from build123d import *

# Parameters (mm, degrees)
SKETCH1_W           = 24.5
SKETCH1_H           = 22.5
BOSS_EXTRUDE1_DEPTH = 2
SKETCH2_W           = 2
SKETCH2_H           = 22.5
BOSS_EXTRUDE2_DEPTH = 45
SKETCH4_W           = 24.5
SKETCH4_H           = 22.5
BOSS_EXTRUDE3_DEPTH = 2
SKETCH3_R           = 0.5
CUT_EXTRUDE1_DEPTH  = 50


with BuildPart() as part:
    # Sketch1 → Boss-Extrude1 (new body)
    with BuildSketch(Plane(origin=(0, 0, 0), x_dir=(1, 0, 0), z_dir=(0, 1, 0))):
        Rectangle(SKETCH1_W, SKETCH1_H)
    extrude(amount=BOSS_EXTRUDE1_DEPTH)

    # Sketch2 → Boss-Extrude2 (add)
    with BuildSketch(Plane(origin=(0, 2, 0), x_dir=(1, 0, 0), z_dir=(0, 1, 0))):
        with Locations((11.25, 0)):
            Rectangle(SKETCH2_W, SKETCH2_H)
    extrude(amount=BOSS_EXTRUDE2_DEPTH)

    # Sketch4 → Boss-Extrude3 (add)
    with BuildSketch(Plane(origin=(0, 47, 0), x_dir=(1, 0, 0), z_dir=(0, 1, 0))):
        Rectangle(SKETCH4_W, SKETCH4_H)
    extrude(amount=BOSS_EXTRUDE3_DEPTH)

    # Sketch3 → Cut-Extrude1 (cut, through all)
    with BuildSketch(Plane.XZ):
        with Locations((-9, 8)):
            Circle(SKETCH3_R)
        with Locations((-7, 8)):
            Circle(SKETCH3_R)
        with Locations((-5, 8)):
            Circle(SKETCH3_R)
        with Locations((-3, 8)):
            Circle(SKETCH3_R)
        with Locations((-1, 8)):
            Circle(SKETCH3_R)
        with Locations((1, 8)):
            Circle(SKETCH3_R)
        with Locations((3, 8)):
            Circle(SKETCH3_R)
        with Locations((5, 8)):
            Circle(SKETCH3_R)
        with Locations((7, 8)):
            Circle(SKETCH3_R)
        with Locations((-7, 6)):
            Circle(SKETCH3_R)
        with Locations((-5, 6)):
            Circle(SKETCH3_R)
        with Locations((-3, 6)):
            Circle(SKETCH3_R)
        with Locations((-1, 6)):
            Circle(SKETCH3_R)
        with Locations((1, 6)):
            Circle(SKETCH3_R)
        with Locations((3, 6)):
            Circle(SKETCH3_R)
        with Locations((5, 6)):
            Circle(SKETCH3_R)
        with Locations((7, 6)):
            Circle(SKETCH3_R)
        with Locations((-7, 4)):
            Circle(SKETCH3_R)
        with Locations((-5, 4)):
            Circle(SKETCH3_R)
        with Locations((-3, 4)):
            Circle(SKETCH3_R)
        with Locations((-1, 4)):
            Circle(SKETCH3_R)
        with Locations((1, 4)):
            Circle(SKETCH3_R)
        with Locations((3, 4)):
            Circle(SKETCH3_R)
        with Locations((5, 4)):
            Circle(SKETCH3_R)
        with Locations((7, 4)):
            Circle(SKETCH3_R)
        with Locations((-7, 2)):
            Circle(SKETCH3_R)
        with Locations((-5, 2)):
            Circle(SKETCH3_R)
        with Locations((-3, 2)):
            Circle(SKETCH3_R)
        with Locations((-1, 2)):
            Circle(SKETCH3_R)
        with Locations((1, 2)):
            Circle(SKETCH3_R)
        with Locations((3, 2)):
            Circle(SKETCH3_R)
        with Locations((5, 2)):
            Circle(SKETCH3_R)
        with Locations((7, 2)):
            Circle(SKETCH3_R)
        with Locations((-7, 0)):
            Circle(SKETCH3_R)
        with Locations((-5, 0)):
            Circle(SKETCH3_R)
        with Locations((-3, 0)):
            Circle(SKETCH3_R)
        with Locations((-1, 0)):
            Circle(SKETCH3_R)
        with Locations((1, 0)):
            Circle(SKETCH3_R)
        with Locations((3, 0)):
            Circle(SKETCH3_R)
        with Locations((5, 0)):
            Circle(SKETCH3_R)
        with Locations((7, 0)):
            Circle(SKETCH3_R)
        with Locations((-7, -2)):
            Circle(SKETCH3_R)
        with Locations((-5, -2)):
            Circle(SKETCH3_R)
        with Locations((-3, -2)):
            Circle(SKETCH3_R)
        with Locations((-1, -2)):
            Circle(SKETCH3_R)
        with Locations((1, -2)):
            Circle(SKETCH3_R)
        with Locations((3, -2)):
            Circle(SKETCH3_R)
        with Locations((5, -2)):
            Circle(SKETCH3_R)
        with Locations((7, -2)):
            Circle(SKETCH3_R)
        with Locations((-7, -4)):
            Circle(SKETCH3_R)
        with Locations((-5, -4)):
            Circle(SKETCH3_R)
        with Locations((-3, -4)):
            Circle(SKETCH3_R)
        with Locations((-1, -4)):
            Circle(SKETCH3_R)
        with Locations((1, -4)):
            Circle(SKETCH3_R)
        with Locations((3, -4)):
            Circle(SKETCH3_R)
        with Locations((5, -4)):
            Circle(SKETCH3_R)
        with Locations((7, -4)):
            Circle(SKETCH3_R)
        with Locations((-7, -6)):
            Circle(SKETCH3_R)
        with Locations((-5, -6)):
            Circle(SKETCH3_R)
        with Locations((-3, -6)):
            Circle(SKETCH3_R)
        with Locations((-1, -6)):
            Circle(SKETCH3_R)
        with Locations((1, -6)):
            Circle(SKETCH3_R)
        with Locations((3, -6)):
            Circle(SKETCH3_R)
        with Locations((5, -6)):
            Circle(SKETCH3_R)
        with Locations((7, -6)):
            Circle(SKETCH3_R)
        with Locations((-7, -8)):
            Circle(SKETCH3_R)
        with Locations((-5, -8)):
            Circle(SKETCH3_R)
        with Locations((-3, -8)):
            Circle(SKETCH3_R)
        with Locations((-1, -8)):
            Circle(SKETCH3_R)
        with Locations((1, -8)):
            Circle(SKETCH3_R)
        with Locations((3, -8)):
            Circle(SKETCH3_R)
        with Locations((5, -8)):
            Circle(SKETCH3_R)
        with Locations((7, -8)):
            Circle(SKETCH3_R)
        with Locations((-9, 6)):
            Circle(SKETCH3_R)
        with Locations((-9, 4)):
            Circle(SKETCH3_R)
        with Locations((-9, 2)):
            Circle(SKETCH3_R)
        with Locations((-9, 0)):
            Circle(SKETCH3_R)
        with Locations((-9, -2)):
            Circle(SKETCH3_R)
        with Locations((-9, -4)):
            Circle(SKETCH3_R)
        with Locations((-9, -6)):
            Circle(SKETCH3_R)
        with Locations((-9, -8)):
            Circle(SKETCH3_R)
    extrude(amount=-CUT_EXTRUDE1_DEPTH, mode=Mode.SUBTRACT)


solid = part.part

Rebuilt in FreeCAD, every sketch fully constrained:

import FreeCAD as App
import Part
import Sketcher

doc = App.newDocument("Part")
body = doc.addObject("PartDesign::Body", "Body")

# Sketch on XZ plane
sketch1 = body.newObject("Sketcher::SketchObject", "Sketch")
sketch1.AttachmentSupport = (doc.getObject("XZ_Plane"), [""])
sketch1.MapMode = "FlatFace"
sketch1.addGeometry([
    Part.LineSegment(App.Vector(-12, -11, 0), App.Vector(-12, 11, 0)),
    Part.LineSegment(App.Vector(-12, 11, 0), App.Vector(12, 11, 0)),
    Part.LineSegment(App.Vector(12, 11, 0), App.Vector(12, -11, 0)),
    Part.LineSegment(App.Vector(12, -11, 0), App.Vector(-12, -11, 0)),
], False)
sketch1.addConstraint([
    Sketcher.Constraint("Coincident", 0, 2, 1, 1),
    Sketcher.Constraint("Coincident", 1, 2, 2, 1),
    Sketcher.Constraint("Coincident", 2, 2, 3, 1),
    Sketcher.Constraint("Coincident", 3, 2, 0, 1),
    Sketcher.Constraint("Vertical", 0),
    Sketcher.Constraint("Horizontal", 1),
    Sketcher.Constraint("Vertical", 2),
    Sketcher.Constraint("Horizontal", 3),
    Sketcher.Constraint("Symmetric", 0, 2, 2, 2, -1, 1),
    Sketcher.Constraint("DistanceX", 1, 1, 1, 2, 24.5),
    Sketcher.Constraint("DistanceY", 0, 1, 0, 2, 22.5),
])
pad1 = body.newObject("PartDesign::Pad", "Pad")
pad1.Profile = sketch1
pad1.Length = 2
pad1.Reversed = True

# Sketch on XZ plane
sketch2 = body.newObject("Sketcher::SketchObject", "Sketch001")
sketch2.AttachmentSupport = (doc.getObject("XZ_Plane"), [""])
sketch2.MapMode = "FlatFace"
sketch2.AttachmentOffset = App.Placement(App.Vector(0, 0, -2), App.Rotation())
sketch2.addGeometry([
    Part.LineSegment(App.Vector(10.2, -11.2, 0), App.Vector(10.2, 11.2, 0)),
    Part.LineSegment(App.Vector(10.2, 11.2, 0), App.Vector(12.2, 11.2, 0)),
    Part.LineSegment(App.Vector(12.2, 11.2, 0), App.Vector(12.2, -11.2, 0)),
    Part.LineSegment(App.Vector(12.2, -11.2, 0), App.Vector(10.2, -11.2, 0)),
], False)
sketch2.addConstraint([
    Sketcher.Constraint("Coincident", 0, 2, 1, 1),
    Sketcher.Constraint("Coincident", 1, 2, 2, 1),
    Sketcher.Constraint("Coincident", 2, 2, 3, 1),
    Sketcher.Constraint("Coincident", 3, 2, 0, 1),
    Sketcher.Constraint("Vertical", 0),
    Sketcher.Constraint("Horizontal", 1),
    Sketcher.Constraint("Vertical", 2),
    Sketcher.Constraint("Horizontal", 3),
    Sketcher.Constraint("DistanceX", 1, 1, 1, 2, 2.0),
    Sketcher.Constraint("DistanceY", 0, 1, 0, 2, 22.5),
    Sketcher.Constraint("DistanceX", -1, 1, 0, 2, 10.25),
    Sketcher.Constraint("DistanceY", -1, 1, 0, 2, 11.25),
])
pad2 = body.newObject("PartDesign::Pad", "Pad001")
pad2.Profile = sketch2
pad2.Length = 45
pad2.Reversed = True

# Sketch on XZ plane
sketch3 = body.newObject("Sketcher::SketchObject", "Sketch002")
sketch3.AttachmentSupport = (doc.getObject("XZ_Plane"), [""])
sketch3.MapMode = "FlatFace"
sketch3.AttachmentOffset = App.Placement(App.Vector(0, 0, -47), App.Rotation())
sketch3.addGeometry([
    Part.LineSegment(App.Vector(-12, -11, 0), App.Vector(-12, 11, 0)),
    Part.LineSegment(App.Vector(-12, 11, 0), App.Vector(12, 11, 0)),
    Part.LineSegment(App.Vector(12, 11, 0), App.Vector(12, -11, 0)),
    Part.LineSegment(App.Vector(12, -11, 0), App.Vector(-12, -11, 0)),
], False)
sketch3.addConstraint([
    Sketcher.Constraint("Coincident", 0, 2, 1, 1),
    Sketcher.Constraint("Coincident", 1, 2, 2, 1),
    Sketcher.Constraint("Coincident", 2, 2, 3, 1),
    Sketcher.Constraint("Coincident", 3, 2, 0, 1),
    Sketcher.Constraint("Vertical", 0),
    Sketcher.Constraint("Horizontal", 1),
    Sketcher.Constraint("Vertical", 2),
    Sketcher.Constraint("Horizontal", 3),
    Sketcher.Constraint("Symmetric", 0, 2, 2, 2, -1, 1),
    Sketcher.Constraint("DistanceX", 1, 1, 1, 2, 24.5),
    Sketcher.Constraint("DistanceY", 0, 1, 0, 2, 22.5),
])
pad3 = body.newObject("PartDesign::Pad", "Pad002")
pad3.Profile = sketch3
pad3.Length = 2
pad3.Reversed = True

# Sketch on XZ plane
sketch4 = body.newObject("Sketcher::SketchObject", "Sketch003")
sketch4.AttachmentSupport = (doc.getObject("XZ_Plane"), [""])
sketch4.MapMode = "FlatFace"
sketch4.addGeometry([
    Part.Circle(App.Vector(-9, 8, 0), App.Vector(0, 0, 1), 0.5),  # 0
    Part.Circle(App.Vector(-7, 8, 0), App.Vector(0, 0, 1), 0.5),  # 1
    Part.Circle(App.Vector(-5, 8, 0), App.Vector(0, 0, 1), 0.5),  # 2
    Part.Circle(App.Vector(-3, 8, 0), App.Vector(0, 0, 1), 0.5),  # 3
    Part.Circle(App.Vector(-1, 8, 0), App.Vector(0, 0, 1), 0.5),  # 4
    Part.Circle(App.Vector(1, 8, 0), App.Vector(0, 0, 1), 0.5),  # 5
    Part.Circle(App.Vector(3, 8, 0), App.Vector(0, 0, 1), 0.5),  # 6
    Part.Circle(App.Vector(5, 8, 0), App.Vector(0, 0, 1), 0.5),  # 7
    Part.Circle(App.Vector(7, 8, 0), App.Vector(0, 0, 1), 0.5),  # 8
    Part.Circle(App.Vector(-7, 6, 0), App.Vector(0, 0, 1), 0.5),  # 9
    Part.Circle(App.Vector(-5, 6, 0), App.Vector(0, 0, 1), 0.5),  # 10
    Part.Circle(App.Vector(-3, 6, 0), App.Vector(0, 0, 1), 0.5),  # 11
    Part.Circle(App.Vector(-1, 6, 0), App.Vector(0, 0, 1), 0.5),  # 12
    Part.Circle(App.Vector(1, 6, 0), App.Vector(0, 0, 1), 0.5),  # 13
    Part.Circle(App.Vector(3, 6, 0), App.Vector(0, 0, 1), 0.5),  # 14
    Part.Circle(App.Vector(5, 6, 0), App.Vector(0, 0, 1), 0.5),  # 15
    Part.Circle(App.Vector(7, 6, 0), App.Vector(0, 0, 1), 0.5),  # 16
    Part.Circle(App.Vector(-7, 4, 0), App.Vector(0, 0, 1), 0.5),  # 17
    Part.Circle(App.Vector(-5, 4, 0), App.Vector(0, 0, 1), 0.5),  # 18
    Part.Circle(App.Vector(-3, 4, 0), App.Vector(0, 0, 1), 0.5),  # 19
    Part.Circle(App.Vector(-1, 4, 0), App.Vector(0, 0, 1), 0.5),  # 20
    Part.Circle(App.Vector(1, 4, 0), App.Vector(0, 0, 1), 0.5),  # 21
    Part.Circle(App.Vector(3, 4, 0), App.Vector(0, 0, 1), 0.5),  # 22
    Part.Circle(App.Vector(5, 4, 0), App.Vector(0, 0, 1), 0.5),  # 23
    Part.Circle(App.Vector(7, 4, 0), App.Vector(0, 0, 1), 0.5),  # 24
    Part.Circle(App.Vector(-7, 2, 0), App.Vector(0, 0, 1), 0.5),  # 25
    Part.Circle(App.Vector(-5, 2, 0), App.Vector(0, 0, 1), 0.5),  # 26
    Part.Circle(App.Vector(-3, 2, 0), App.Vector(0, 0, 1), 0.5),  # 27
    Part.Circle(App.Vector(-1, 2, 0), App.Vector(0, 0, 1), 0.5),  # 28
    Part.Circle(App.Vector(1, 2, 0), App.Vector(0, 0, 1), 0.5),  # 29
    Part.Circle(App.Vector(3, 2, 0), App.Vector(0, 0, 1), 0.5),  # 30
    Part.Circle(App.Vector(5, 2, 0), App.Vector(0, 0, 1), 0.5),  # 31
    Part.Circle(App.Vector(7, 2, 0), App.Vector(0, 0, 1), 0.5),  # 32
    Part.Circle(App.Vector(-7, 0, 0), App.Vector(0, 0, 1), 0.5),  # 33
    Part.Circle(App.Vector(-5, 0, 0), App.Vector(0, 0, 1), 0.5),  # 34
    Part.Circle(App.Vector(-3, 0, 0), App.Vector(0, 0, 1), 0.5),  # 35
    Part.Circle(App.Vector(-1, 0, 0), App.Vector(0, 0, 1), 0.5),  # 36
    Part.Circle(App.Vector(1, 0, 0), App.Vector(0, 0, 1), 0.5),  # 37
    Part.Circle(App.Vector(3, 0, 0), App.Vector(0, 0, 1), 0.5),  # 38
    Part.Circle(App.Vector(5, 0, 0), App.Vector(0, 0, 1), 0.5),  # 39
    Part.Circle(App.Vector(7, 0, 0), App.Vector(0, 0, 1), 0.5),  # 40
    Part.Circle(App.Vector(-7, -2, 0), App.Vector(0, 0, 1), 0.5),  # 41
    Part.Circle(App.Vector(-5, -2, 0), App.Vector(0, 0, 1), 0.5),  # 42
    Part.Circle(App.Vector(-3, -2, 0), App.Vector(0, 0, 1), 0.5),  # 43
    Part.Circle(App.Vector(-1, -2, 0), App.Vector(0, 0, 1), 0.5),  # 44
    Part.Circle(App.Vector(1, -2, 0), App.Vector(0, 0, 1), 0.5),  # 45
    Part.Circle(App.Vector(3, -2, 0), App.Vector(0, 0, 1), 0.5),  # 46
    Part.Circle(App.Vector(5, -2, 0), App.Vector(0, 0, 1), 0.5),  # 47
    Part.Circle(App.Vector(7, -2, 0), App.Vector(0, 0, 1), 0.5),  # 48
    Part.Circle(App.Vector(-7, -4, 0), App.Vector(0, 0, 1), 0.5),  # 49
    Part.Circle(App.Vector(-5, -4, 0), App.Vector(0, 0, 1), 0.5),  # 50
    Part.Circle(App.Vector(-3, -4, 0), App.Vector(0, 0, 1), 0.5),  # 51
    Part.Circle(App.Vector(-1, -4, 0), App.Vector(0, 0, 1), 0.5),  # 52
    Part.Circle(App.Vector(1, -4, 0), App.Vector(0, 0, 1), 0.5),  # 53
    Part.Circle(App.Vector(3, -4, 0), App.Vector(0, 0, 1), 0.5),  # 54
    Part.Circle(App.Vector(5, -4, 0), App.Vector(0, 0, 1), 0.5),  # 55
    Part.Circle(App.Vector(7, -4, 0), App.Vector(0, 0, 1), 0.5),  # 56
    Part.Circle(App.Vector(-7, -6, 0), App.Vector(0, 0, 1), 0.5),  # 57
    Part.Circle(App.Vector(-5, -6, 0), App.Vector(0, 0, 1), 0.5),  # 58
    Part.Circle(App.Vector(-3, -6, 0), App.Vector(0, 0, 1), 0.5),  # 59
    Part.Circle(App.Vector(-1, -6, 0), App.Vector(0, 0, 1), 0.5),  # 60
    Part.Circle(App.Vector(1, -6, 0), App.Vector(0, 0, 1), 0.5),  # 61
    Part.Circle(App.Vector(3, -6, 0), App.Vector(0, 0, 1), 0.5),  # 62
    Part.Circle(App.Vector(5, -6, 0), App.Vector(0, 0, 1), 0.5),  # 63
    Part.Circle(App.Vector(7, -6, 0), App.Vector(0, 0, 1), 0.5),  # 64
    Part.Circle(App.Vector(-7, -8, 0), App.Vector(0, 0, 1), 0.5),  # 65
    Part.Circle(App.Vector(-5, -8, 0), App.Vector(0, 0, 1), 0.5),  # 66
    Part.Circle(App.Vector(-3, -8, 0), App.Vector(0, 0, 1), 0.5),  # 67
    Part.Circle(App.Vector(-1, -8, 0), App.Vector(0, 0, 1), 0.5),  # 68
    Part.Circle(App.Vector(1, -8, 0), App.Vector(0, 0, 1), 0.5),  # 69
    Part.Circle(App.Vector(3, -8, 0), App.Vector(0, 0, 1), 0.5),  # 70
    Part.Circle(App.Vector(5, -8, 0), App.Vector(0, 0, 1), 0.5),  # 71
    Part.Circle(App.Vector(7, -8, 0), App.Vector(0, 0, 1), 0.5),  # 72
    Part.Circle(App.Vector(-9, 6, 0), App.Vector(0, 0, 1), 0.5),  # 73
    Part.Circle(App.Vector(-9, 4, 0), App.Vector(0, 0, 1), 0.5),  # 74
    Part.Circle(App.Vector(-9, 2, 0), App.Vector(0, 0, 1), 0.5),  # 75
    Part.Circle(App.Vector(-9, 0, 0), App.Vector(0, 0, 1), 0.5),  # 76
    Part.Circle(App.Vector(-9, -2, 0), App.Vector(0, 0, 1), 0.5),  # 77
    Part.Circle(App.Vector(-9, -4, 0), App.Vector(0, 0, 1), 0.5),  # 78
    Part.Circle(App.Vector(-9, -6, 0), App.Vector(0, 0, 1), 0.5),  # 79
    Part.Circle(App.Vector(-9, -8, 0), App.Vector(0, 0, 1), 0.5),  # 80
], False)
sketch4.addConstraint([
    Sketcher.Constraint("Equal", 0, 1),
    Sketcher.Constraint("Equal", 1, 2),
    Sketcher.Constraint("Equal", 2, 3),
    Sketcher.Constraint("Equal", 3, 4),
    Sketcher.Constraint("Equal", 4, 5),
    Sketcher.Constraint("Equal", 5, 6),
    Sketcher.Constraint("Equal", 6, 7),
    Sketcher.Constraint("Equal", 7, 8),
    Sketcher.Constraint("Equal", 8, 9),
    Sketcher.Constraint("Equal", 9, 10),
    Sketcher.Constraint("Equal", 10, 11),
    Sketcher.Constraint("Equal", 11, 12),
    Sketcher.Constraint("Equal", 12, 13),
    Sketcher.Constraint("Equal", 13, 14),
    Sketcher.Constraint("Equal", 14, 15),
    Sketcher.Constraint("Equal", 15, 16),
    Sketcher.Constraint("Equal", 16, 17),
    Sketcher.Constraint("Equal", 17, 18),
    Sketcher.Constraint("Equal", 18, 19),
    Sketcher.Constraint("Equal", 19, 20),
    Sketcher.Constraint("Equal", 20, 21),
    Sketcher.Constraint("Equal", 21, 22),
    Sketcher.Constraint("Equal", 22, 23),
    Sketcher.Constraint("Equal", 23, 24),
    Sketcher.Constraint("Equal", 24, 25),
    Sketcher.Constraint("Equal", 25, 26),
    Sketcher.Constraint("Equal", 26, 27),
    Sketcher.Constraint("Equal", 27, 28),
    Sketcher.Constraint("Equal", 28, 29),
    Sketcher.Constraint("Equal", 29, 30),
    Sketcher.Constraint("Equal", 30, 31),
    Sketcher.Constraint("Equal", 31, 32),
    Sketcher.Constraint("Equal", 32, 33),
    Sketcher.Constraint("Equal", 33, 34),
    Sketcher.Constraint("Equal", 34, 35),
    Sketcher.Constraint("Equal", 35, 36),
    Sketcher.Constraint("Equal", 36, 37),
    Sketcher.Constraint("Equal", 37, 38),
    Sketcher.Constraint("Equal", 38, 39),
    Sketcher.Constraint("Equal", 39, 40),
    Sketcher.Constraint("Equal", 40, 41),
    Sketcher.Constraint("Equal", 41, 42),
    Sketcher.Constraint("Equal", 42, 43),
    Sketcher.Constraint("Equal", 43, 44),
    Sketcher.Constraint("Equal", 44, 45),
    Sketcher.Constraint("Equal", 45, 46),
    Sketcher.Constraint("Equal", 46, 47),
    Sketcher.Constraint("Equal", 47, 48),
    Sketcher.Constraint("Equal", 48, 49),
    Sketcher.Constraint("Equal", 49, 50),
    Sketcher.Constraint("Equal", 50, 51),
    Sketcher.Constraint("Equal", 51, 52),
    Sketcher.Constraint("Equal", 52, 53),
    Sketcher.Constraint("Equal", 53, 54),
    Sketcher.Constraint("Equal", 54, 55),
    Sketcher.Constraint("Equal", 55, 56),
    Sketcher.Constraint("Equal", 56, 57),
    Sketcher.Constraint("Equal", 57, 58),
    Sketcher.Constraint("Equal", 58, 59),
    Sketcher.Constraint("Equal", 59, 60),
    Sketcher.Constraint("Equal", 60, 61),
    Sketcher.Constraint("Equal", 61, 62),
    Sketcher.Constraint("Equal", 62, 63),
    Sketcher.Constraint("Equal", 63, 64),
    Sketcher.Constraint("Equal", 64, 65),
    Sketcher.Constraint("Equal", 65, 66),
    Sketcher.Constraint("Equal", 66, 67),
    Sketcher.Constraint("Equal", 67, 68),
    Sketcher.Constraint("Equal", 68, 69),
    Sketcher.Constraint("Equal", 69, 70),
    Sketcher.Constraint("Equal", 70, 71),
    Sketcher.Constraint("Equal", 71, 72),
    Sketcher.Constraint("Equal", 72, 73),
    Sketcher.Constraint("Equal", 73, 74),
    Sketcher.Constraint("Equal", 74, 75),
    Sketcher.Constraint("Equal", 75, 76),
    Sketcher.Constraint("Equal", 76, 77),
    Sketcher.Constraint("Equal", 77, 78),
    Sketcher.Constraint("Equal", 78, 79),
    Sketcher.Constraint("Equal", 79, 80),
    Sketcher.Constraint("Symmetric", 36, 3, 37, 3, -1, 1),
    Sketcher.Constraint("Symmetric", 35, 3, 38, 3, -1, 1),
    Sketcher.Constraint("Symmetric", 34, 3, 39, 3, -1, 1),
    Sketcher.Constraint("Symmetric", 33, 3, 40, 3, -1, 1),
    Sketcher.Constraint("Symmetric", 32, 3, 41, 3, -1, 1),
    Sketcher.Constraint("Symmetric", 31, 3, 42, 3, -1, 1),
    Sketcher.Constraint("Symmetric", 30, 3, 43, 3, -1, 1),
    Sketcher.Constraint("Symmetric", 29, 3, 44, 3, -1, 1),
    Sketcher.Constraint("Symmetric", 28, 3, 45, 3, -1, 1),
    Sketcher.Constraint("Symmetric", 27, 3, 46, 3, -1, 1),
    Sketcher.Constraint("Symmetric", 26, 3, 47, 3, -1, 1),
    Sketcher.Constraint("Symmetric", 25, 3, 48, 3, -1, 1),
    Sketcher.Constraint("Symmetric", 24, 3, 49, 3, -1, 1),
    Sketcher.Constraint("Symmetric", 23, 3, 50, 3, -1, 1),
    Sketcher.Constraint("Symmetric", 22, 3, 51, 3, -1, 1),
    Sketcher.Constraint("Symmetric", 21, 3, 52, 3, -1, 1),
    Sketcher.Constraint("Symmetric", 20, 3, 53, 3, -1, 1),
    Sketcher.Constraint("Symmetric", 19, 3, 54, 3, -1, 1),
    Sketcher.Constraint("Symmetric", 18, 3, 55, 3, -1, 1),
    Sketcher.Constraint("Symmetric", 17, 3, 56, 3, -1, 1),
    Sketcher.Constraint("Symmetric", 16, 3, 57, 3, -1, 1),
    Sketcher.Constraint("Symmetric", 15, 3, 58, 3, -1, 1),
    Sketcher.Constraint("Symmetric", 14, 3, 59, 3, -1, 1),
    Sketcher.Constraint("Symmetric", 13, 3, 60, 3, -1, 1),
    Sketcher.Constraint("Symmetric", 12, 3, 61, 3, -1, 1),
    Sketcher.Constraint("Symmetric", 11, 3, 62, 3, -1, 1),
    Sketcher.Constraint("Symmetric", 10, 3, 63, 3, -1, 1),
    Sketcher.Constraint("Symmetric", 9, 3, 64, 3, -1, 1),
    Sketcher.Constraint("Symmetric", 8, 3, 65, 3, -1, 1),
    Sketcher.Constraint("Symmetric", 7, 3, 66, 3, -1, 1),
    Sketcher.Constraint("Symmetric", 6, 3, 67, 3, -1, 1),
    Sketcher.Constraint("Symmetric", 5, 3, 68, 3, -1, 1),
    Sketcher.Constraint("Symmetric", 4, 3, 69, 3, -1, 1),
    Sketcher.Constraint("Symmetric", 3, 3, 70, 3, -1, 1),
    Sketcher.Constraint("Symmetric", 2, 3, 71, 3, -1, 1),
    Sketcher.Constraint("Symmetric", 1, 3, 72, 3, -1, 1),
    Sketcher.Constraint("Symmetric", 4, 3, 5, 3, -2),
    Sketcher.Constraint("Symmetric", 3, 3, 6, 3, -2),
    Sketcher.Constraint("Symmetric", 2, 3, 7, 3, -2),
    Sketcher.Constraint("Symmetric", 1, 3, 8, 3, -2),
    Sketcher.Constraint("Symmetric", 12, 3, 13, 3, -2),
    Sketcher.Constraint("Symmetric", 11, 3, 14, 3, -2),
    Sketcher.Constraint("Symmetric", 10, 3, 15, 3, -2),
    Sketcher.Constraint("Symmetric", 9, 3, 16, 3, -2),
    Sketcher.Constraint("Symmetric", 20, 3, 21, 3, -2),
    Sketcher.Constraint("Symmetric", 19, 3, 22, 3, -2),
    Sketcher.Constraint("Symmetric", 18, 3, 23, 3, -2),
    Sketcher.Constraint("Symmetric", 17, 3, 24, 3, -2),
    Sketcher.Constraint("Symmetric", 28, 3, 29, 3, -2),
    Sketcher.Constraint("Symmetric", 27, 3, 30, 3, -2),
    Sketcher.Constraint("Symmetric", 26, 3, 31, 3, -2),
    Sketcher.Constraint("Symmetric", 25, 3, 32, 3, -2),
    Sketcher.Constraint("Symmetric", 75, 3, 77, 3, -1),
    Sketcher.Constraint("Symmetric", 74, 3, 78, 3, -1),
    Sketcher.Constraint("Symmetric", 73, 3, 79, 3, -1),
    Sketcher.Constraint("Symmetric", 0, 3, 80, 3, -1),
    Sketcher.Constraint("PointOnObject", 33, 3, -1),
    Sketcher.Constraint("PointOnObject", 34, 3, -1),
    Sketcher.Constraint("PointOnObject", 35, 3, -1),
    Sketcher.Constraint("PointOnObject", 36, 3, -1),
    Sketcher.Constraint("PointOnObject", 76, 3, -1),
    Sketcher.Constraint("Horizontal", 0, 3, 1, 3),
    Sketcher.Constraint("Horizontal", 1, 3, 2, 3),
    Sketcher.Constraint("Horizontal", 2, 3, 3, 3),
    Sketcher.Constraint("Horizontal", 3, 3, 4, 3),
    Sketcher.Constraint("Horizontal", 9, 3, 10, 3),
    Sketcher.Constraint("Horizontal", 10, 3, 11, 3),
    Sketcher.Constraint("Horizontal", 11, 3, 12, 3),
    Sketcher.Constraint("Horizontal", 17, 3, 18, 3),
    Sketcher.Constraint("Horizontal", 18, 3, 19, 3),
    Sketcher.Constraint("Horizontal", 19, 3, 20, 3),
    Sketcher.Constraint("Horizontal", 25, 3, 26, 3),
    Sketcher.Constraint("Horizontal", 26, 3, 27, 3),
    Sketcher.Constraint("Horizontal", 27, 3, 28, 3),
    Sketcher.Constraint("Horizontal", 16, 3, 73, 3),
    Sketcher.Constraint("Horizontal", 24, 3, 74, 3),
    Sketcher.Constraint("Horizontal", 32, 3, 75, 3),
    Sketcher.Constraint("Vertical", 1, 3, 9, 3),
    Sketcher.Constraint("Vertical", 2, 3, 10, 3),
    Sketcher.Constraint("Vertical", 3, 3, 11, 3),
    Sketcher.Constraint("Vertical", 4, 3, 12, 3),
    Sketcher.Constraint("Vertical", 9, 3, 17, 3),
    Sketcher.Constraint("Vertical", 10, 3, 18, 3),
    Sketcher.Constraint("Vertical", 11, 3, 19, 3),
    Sketcher.Constraint("Vertical", 12, 3, 20, 3),
    Sketcher.Constraint("Vertical", 17, 3, 25, 3),
    Sketcher.Constraint("Vertical", 18, 3, 26, 3),
    Sketcher.Constraint("Vertical", 19, 3, 27, 3),
    Sketcher.Constraint("Vertical", 20, 3, 28, 3),
    Sketcher.Constraint("Vertical", 25, 3, 33, 3),
    Sketcher.Constraint("Vertical", 26, 3, 34, 3),
    Sketcher.Constraint("Vertical", 27, 3, 35, 3),
    Sketcher.Constraint("Vertical", 28, 3, 36, 3),
    Sketcher.Constraint("Vertical", 0, 3, 73, 3),
    Sketcher.Constraint("Vertical", 73, 3, 74, 3),
    Sketcher.Constraint("Vertical", 74, 3, 75, 3),
    Sketcher.Constraint("Vertical", 75, 3, 76, 3),
    Sketcher.Constraint("Diameter", 0, 1.0),
    Sketcher.Constraint("DistanceX", 0, 3, -1, 1, 9.0),
    Sketcher.Constraint("DistanceY", -1, 1, 0, 3, 8.0),
    Sketcher.Constraint("DistanceX", 1, 3, -1, 1, 7.0),
    Sketcher.Constraint("DistanceX", 2, 3, -1, 1, 5.0),
    Sketcher.Constraint("DistanceX", 3, 3, -1, 1, 3.0),
    Sketcher.Constraint("DistanceX", 4, 3, -1, 1, 1.0),
    Sketcher.Constraint("DistanceY", -1, 1, 9, 3, 6.0),
    Sketcher.Constraint("DistanceY", -1, 1, 17, 3, 4.0),
    Sketcher.Constraint("DistanceY", -1, 1, 25, 3, 2.0),
])
pocket1 = body.newObject("PartDesign::Pocket", "Pocket")
pocket1.Profile = sketch4
pocket1.Type = "ThroughAll"

doc.recompute()
